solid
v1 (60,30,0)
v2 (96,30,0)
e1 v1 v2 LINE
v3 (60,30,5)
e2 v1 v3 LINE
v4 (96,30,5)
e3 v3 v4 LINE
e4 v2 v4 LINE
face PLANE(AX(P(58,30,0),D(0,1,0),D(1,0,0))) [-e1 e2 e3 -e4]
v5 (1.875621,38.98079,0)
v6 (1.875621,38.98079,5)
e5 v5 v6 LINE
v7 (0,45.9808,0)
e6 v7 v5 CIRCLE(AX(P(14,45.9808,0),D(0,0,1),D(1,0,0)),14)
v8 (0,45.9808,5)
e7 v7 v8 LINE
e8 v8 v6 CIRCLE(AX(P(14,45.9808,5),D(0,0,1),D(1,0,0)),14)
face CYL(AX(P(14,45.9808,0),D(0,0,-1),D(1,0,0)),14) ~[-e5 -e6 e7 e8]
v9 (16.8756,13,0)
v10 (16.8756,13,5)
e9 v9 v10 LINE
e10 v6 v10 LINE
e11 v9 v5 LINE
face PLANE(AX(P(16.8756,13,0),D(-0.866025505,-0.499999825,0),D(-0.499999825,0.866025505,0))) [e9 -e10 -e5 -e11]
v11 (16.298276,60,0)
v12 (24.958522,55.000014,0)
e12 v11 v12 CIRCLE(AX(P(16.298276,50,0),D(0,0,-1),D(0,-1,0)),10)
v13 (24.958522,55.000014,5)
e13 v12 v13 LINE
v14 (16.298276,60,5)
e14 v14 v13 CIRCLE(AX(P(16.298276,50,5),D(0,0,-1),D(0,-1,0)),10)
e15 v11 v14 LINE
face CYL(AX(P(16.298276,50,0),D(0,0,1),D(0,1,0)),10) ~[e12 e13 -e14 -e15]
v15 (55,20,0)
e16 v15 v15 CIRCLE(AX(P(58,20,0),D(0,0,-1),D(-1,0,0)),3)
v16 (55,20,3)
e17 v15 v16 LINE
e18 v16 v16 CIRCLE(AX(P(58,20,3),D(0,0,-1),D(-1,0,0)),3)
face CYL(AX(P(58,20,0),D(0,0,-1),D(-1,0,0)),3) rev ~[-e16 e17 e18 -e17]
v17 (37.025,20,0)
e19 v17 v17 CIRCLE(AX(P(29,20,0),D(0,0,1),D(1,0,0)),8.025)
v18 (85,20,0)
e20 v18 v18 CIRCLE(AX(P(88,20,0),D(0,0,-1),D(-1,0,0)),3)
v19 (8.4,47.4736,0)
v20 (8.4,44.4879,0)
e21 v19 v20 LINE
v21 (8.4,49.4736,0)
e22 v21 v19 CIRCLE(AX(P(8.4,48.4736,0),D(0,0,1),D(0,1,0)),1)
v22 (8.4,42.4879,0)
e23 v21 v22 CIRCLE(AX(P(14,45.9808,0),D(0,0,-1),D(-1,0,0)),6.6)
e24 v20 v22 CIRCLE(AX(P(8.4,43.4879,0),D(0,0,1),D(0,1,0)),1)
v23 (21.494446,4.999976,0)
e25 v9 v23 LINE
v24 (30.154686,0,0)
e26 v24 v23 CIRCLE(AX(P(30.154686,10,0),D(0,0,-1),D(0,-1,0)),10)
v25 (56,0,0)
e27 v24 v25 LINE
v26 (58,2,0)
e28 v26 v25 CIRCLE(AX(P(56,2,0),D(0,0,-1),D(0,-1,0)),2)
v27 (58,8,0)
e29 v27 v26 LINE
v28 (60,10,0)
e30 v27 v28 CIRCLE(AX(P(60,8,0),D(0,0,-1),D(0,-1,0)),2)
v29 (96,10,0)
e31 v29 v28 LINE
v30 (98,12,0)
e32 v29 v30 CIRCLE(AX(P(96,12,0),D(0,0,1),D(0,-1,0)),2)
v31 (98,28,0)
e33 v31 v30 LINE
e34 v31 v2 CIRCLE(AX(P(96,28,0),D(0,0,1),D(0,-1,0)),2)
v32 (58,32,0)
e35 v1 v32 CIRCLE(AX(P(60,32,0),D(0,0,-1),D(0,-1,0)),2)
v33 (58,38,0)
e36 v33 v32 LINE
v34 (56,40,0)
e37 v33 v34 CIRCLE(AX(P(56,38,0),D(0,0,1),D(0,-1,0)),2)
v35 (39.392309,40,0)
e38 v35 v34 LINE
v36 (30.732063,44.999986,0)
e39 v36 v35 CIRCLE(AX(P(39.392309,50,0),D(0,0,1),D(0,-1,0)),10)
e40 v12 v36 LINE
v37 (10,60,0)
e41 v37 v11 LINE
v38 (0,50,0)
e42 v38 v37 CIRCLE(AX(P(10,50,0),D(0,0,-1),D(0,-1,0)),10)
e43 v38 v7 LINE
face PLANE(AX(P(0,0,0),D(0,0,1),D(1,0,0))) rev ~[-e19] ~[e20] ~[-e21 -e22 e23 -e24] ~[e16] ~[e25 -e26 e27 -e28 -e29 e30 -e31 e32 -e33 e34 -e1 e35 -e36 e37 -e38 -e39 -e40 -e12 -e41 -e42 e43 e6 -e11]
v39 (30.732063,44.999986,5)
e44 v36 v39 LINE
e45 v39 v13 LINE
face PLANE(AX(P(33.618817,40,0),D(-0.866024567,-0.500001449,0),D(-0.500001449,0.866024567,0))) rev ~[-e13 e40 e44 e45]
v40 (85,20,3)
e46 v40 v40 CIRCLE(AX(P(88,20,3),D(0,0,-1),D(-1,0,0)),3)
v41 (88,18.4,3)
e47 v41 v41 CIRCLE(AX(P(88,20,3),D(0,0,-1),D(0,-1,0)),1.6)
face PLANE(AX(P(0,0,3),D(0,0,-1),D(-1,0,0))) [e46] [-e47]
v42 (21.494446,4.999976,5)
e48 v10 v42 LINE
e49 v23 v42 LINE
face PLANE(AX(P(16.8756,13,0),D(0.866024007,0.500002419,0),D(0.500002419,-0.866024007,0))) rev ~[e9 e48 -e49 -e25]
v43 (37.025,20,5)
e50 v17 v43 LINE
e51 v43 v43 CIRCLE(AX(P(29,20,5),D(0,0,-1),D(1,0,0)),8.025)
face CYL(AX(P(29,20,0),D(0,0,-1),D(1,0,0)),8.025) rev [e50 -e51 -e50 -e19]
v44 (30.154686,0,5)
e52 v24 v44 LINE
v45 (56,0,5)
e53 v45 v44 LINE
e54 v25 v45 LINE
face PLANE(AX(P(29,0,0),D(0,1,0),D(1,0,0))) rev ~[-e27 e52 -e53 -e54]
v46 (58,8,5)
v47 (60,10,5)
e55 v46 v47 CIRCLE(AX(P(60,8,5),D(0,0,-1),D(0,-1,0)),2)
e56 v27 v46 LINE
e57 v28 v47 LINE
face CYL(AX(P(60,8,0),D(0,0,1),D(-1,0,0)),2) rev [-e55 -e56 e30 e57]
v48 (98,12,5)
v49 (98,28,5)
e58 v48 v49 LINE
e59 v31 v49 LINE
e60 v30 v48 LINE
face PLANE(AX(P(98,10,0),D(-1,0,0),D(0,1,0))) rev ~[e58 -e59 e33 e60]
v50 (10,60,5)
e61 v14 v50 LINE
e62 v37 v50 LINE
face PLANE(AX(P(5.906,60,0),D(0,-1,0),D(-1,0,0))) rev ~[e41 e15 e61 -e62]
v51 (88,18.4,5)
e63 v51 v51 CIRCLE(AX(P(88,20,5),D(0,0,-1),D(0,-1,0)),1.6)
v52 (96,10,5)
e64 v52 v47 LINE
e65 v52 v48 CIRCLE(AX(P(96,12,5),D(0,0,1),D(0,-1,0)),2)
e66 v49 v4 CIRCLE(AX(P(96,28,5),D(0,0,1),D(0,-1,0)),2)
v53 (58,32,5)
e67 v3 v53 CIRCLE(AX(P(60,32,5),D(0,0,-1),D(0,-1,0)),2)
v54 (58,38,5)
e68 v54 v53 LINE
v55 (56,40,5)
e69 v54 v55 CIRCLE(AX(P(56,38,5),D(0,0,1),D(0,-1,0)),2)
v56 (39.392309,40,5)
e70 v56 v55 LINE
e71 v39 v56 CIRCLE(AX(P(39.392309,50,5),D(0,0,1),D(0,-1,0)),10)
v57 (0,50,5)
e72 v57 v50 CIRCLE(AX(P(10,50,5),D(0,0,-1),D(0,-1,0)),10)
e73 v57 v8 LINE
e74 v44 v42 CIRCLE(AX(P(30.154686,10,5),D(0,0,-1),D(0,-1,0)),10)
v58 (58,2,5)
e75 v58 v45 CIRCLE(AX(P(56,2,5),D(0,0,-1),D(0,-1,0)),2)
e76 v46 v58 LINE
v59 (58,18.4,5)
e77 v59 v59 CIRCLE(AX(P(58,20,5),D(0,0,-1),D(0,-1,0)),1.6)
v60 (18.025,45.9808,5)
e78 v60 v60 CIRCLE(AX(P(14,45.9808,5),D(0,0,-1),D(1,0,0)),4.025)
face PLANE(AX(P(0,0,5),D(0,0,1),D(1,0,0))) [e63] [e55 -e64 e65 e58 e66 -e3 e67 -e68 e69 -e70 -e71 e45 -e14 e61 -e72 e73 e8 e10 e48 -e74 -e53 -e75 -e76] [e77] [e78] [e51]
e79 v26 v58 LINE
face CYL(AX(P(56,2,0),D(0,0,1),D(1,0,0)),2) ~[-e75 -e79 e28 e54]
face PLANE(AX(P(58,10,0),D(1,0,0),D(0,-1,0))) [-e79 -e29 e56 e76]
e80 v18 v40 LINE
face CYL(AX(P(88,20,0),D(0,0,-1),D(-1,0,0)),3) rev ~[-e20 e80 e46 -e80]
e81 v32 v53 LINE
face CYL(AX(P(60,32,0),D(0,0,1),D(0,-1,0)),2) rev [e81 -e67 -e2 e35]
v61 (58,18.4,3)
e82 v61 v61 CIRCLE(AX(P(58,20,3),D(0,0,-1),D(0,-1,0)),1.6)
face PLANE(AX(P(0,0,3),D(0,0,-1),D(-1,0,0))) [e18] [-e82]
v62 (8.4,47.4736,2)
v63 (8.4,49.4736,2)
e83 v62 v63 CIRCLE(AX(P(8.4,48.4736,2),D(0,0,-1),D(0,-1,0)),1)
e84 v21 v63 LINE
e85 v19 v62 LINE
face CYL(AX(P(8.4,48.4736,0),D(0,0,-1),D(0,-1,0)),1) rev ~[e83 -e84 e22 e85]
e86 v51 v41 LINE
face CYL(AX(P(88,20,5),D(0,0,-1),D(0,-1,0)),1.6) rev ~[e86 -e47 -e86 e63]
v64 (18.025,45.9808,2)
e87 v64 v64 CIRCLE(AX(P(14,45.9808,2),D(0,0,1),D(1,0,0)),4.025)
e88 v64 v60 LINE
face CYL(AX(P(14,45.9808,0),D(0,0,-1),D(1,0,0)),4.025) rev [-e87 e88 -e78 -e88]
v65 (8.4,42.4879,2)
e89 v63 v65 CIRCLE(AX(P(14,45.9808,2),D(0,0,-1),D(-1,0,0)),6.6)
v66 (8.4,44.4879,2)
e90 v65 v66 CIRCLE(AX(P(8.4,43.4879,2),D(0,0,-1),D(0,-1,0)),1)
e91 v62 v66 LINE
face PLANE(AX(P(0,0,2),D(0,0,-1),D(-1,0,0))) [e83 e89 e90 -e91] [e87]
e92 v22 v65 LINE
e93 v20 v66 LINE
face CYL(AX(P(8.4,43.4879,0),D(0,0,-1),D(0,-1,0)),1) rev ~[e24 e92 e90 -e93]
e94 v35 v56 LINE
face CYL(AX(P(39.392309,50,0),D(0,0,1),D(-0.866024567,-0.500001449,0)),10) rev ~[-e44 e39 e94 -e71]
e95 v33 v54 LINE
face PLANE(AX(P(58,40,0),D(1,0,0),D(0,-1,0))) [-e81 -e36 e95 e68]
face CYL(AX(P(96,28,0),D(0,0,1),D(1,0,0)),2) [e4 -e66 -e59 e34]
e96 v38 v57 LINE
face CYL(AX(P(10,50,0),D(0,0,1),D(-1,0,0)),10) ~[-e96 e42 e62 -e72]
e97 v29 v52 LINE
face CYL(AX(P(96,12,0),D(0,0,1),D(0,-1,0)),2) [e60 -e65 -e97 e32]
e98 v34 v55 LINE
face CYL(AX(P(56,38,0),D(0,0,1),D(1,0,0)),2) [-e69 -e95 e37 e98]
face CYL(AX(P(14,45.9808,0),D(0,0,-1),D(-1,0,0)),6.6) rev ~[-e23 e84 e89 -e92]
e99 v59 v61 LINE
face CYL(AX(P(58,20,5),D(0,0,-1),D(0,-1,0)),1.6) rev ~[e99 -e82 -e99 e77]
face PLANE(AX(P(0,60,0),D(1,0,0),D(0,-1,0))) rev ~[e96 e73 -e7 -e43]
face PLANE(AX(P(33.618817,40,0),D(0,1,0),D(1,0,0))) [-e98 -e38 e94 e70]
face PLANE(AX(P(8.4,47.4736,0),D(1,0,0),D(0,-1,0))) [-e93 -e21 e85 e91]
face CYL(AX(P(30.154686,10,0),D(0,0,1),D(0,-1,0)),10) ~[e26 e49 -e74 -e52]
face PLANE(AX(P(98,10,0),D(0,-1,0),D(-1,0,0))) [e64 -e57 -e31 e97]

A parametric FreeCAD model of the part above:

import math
import FreeCAD as App
import Part
import Sketcher
Q = App.Units.Quantity


def edges_at(feature, points):
    """Names of the edges that pass closest to the given points."""
    edges = feature.Shape.Edges
    near = lambda p: min(range(len(edges)), key=lambda i: edges[i].distToShape(Part.Vertex(*p))[0])
    return sorted({f"Edge{near(p) + 1}" for p in points})

doc = App.newDocument("Part")
params = doc.addObject("Spreadsheet::Sheet", "Params")
for row, (alias, value) in enumerate([
    ("sketch1_radius", "14 mm"),
    ("sketch1_diameter", "16.05 mm"),
    ("sketch1_diameter2", "8.05 mm"),
    ("sketch1_width", "40 mm"),
    ("sketch1_height", "10 mm"),
    ("pad1_length", "5 mm"),
    ("sketch2_diameter", "3.2 mm"),
    ("hole_diameter", "3.2 mm"),
    ("hole_depth", "10 mm"),
    ("fillet_radius", "2 mm"),
    ("fillet2_radius", "10 mm"),
    ("sketch3_diameter", "6 mm"),
    ("pocket1_length", "3 mm"),
    ("sketch4_radius", "1 mm"),
    ("sketch4_radius2", "6.6 mm"),
    ("sketch4_diameter", "8.05 mm"),
    ("pocket2_length", "2 mm"),
], start=1):
    params.set(f"A{row}", alias)
    params.set(f"B{row}", "=" + value)
    params.setAlias(f"B{row}", alias)

body = doc.addObject("PartDesign::Body", "Body")

# Sketch on XY plane
sketch1 = body.newObject("Sketcher::SketchObject", "Sketch")
sketch1.AttachmentSupport = (doc.getObject("XY_Plane"), [""])
sketch1.MapMode = "FlatFace"
sketch1.addGeometry(Part.LineSegment(App.Vector(58, 0, 0), App.Vector(58, 10, 0)), False)
sketch1.addGeometry(Part.LineSegment(App.Vector(58, 10, 0), App.Vector(98, 10, 0)), False)
sketch1.addGeometry(Part.LineSegment(App.Vector(98, 10, 0), App.Vector(98, 30, 0)), False)
sketch1.addGeometry(Part.LineSegment(App.Vector(98, 30, 0), App.Vector(58, 30, 0)), False)
sketch1.addGeometry(Part.LineSegment(App.Vector(58, 30, 0), App.Vector(58, 40, 0)), False)
sketch1.addGeometry(Part.LineSegment(App.Vector(58, 40, 0), App.Vector(33.6, 40, 0)), False)
sketch1.addGeometry(Part.LineSegment(App.Vector(33.6, 40, 0), App.Vector(22.1, 60, 0)), False)
sketch1.addGeometry(Part.LineSegment(App.Vector(22.1, 60, 0), App.Vector(0, 60, 0)), False)
sketch1.addGeometry(Part.LineSegment(App.Vector(0, 60, 0), App.Vector(0, 46, 0)), False)
sketch1.addGeometry(Part.ArcOfCircle(Part.Circle(App.Vector(14, 46, 0), App.Vector(0, 0, 1), 14), math.radians(180), math.radians(210)), False)
sketch1.addGeometry(Part.LineSegment(App.Vector(1.9, 39, 0), App.Vector(16.9, 13, 0)), False)
sketch1.addGeometry(Part.LineSegment(App.Vector(16.9, 13, 0), App.Vector(24.4, 0, 0)), False)
sketch1.addGeometry(Part.LineSegment(App.Vector(24.4, 0, 0), App.Vector(58, 0, 0)), False)
sketch1.addGeometry(Part.Circle(App.Vector(29, 20, 0), App.Vector(0, 0, 1), 8), False)
sketch1.addGeometry(Part.Circle(App.Vector(14, 46, 0), App.Vector(0, 0, 1), 4), False)
sketch1.addConstraint(Sketcher.Constraint("Coincident", 0, 2, 1, 1))
sketch1.addConstraint(Sketcher.Constraint("Coincident", 1, 2, 2, 1))
sketch1.addConstraint(Sketcher.Constraint("Coincident", 2, 2, 3, 1))
sketch1.addConstraint(Sketcher.Constraint("Coincident", 3, 2, 4, 1))
sketch1.addConstraint(Sketcher.Constraint("Coincident", 4, 2, 5, 1))
sketch1.addConstraint(Sketcher.Constraint("Coincident", 5, 2, 6, 1))
sketch1.addConstraint(Sketcher.Constraint("Coincident", 6, 2, 7, 1))
sketch1.addConstraint(Sketcher.Constraint("Coincident", 7, 2, 8, 1))
sketch1.addConstraint(Sketcher.Constraint("Tangent", 8, 2, 9, 1))
sketch1.addConstraint(Sketcher.Constraint("Tangent", 9, 2, 10, 1))
sketch1.addConstraint(Sketcher.Constraint("Coincident", 10, 2, 11, 1))
sketch1.addConstraint(Sketcher.Constraint("Coincident", 11, 2, 12, 1))
sketch1.addConstraint(Sketcher.Constraint("Coincident", 12, 2, 0, 1))
sketch1.addConstraint(Sketcher.Constraint("Vertical", 0))
sketch1.addConstraint(Sketcher.Constraint("Horizontal", 1))
sketch1.addConstraint(Sketcher.Constraint("Vertical", 2))
sketch1.addConstraint(Sketcher.Constraint("Horizontal", 3))
sketch1.addConstraint(Sketcher.Constraint("Vertical", 4))
sketch1.addConstraint(Sketcher.Constraint("Horizontal", 5))
sketch1.addConstraint(Sketcher.Constraint("Horizontal", 7))
sketch1.addConstraint(Sketcher.Constraint("Vertical", 8))
sketch1.addConstraint(Sketcher.Constraint("Horizontal", 12))
sketch1.addConstraint(Sketcher.Constraint("Coincident", 14, 3, 9, 3))
sketch1.addConstraint(Sketcher.Constraint("PointOnObject", 7, 2, -2))
sketch1.addConstraint(Sketcher.Constraint("PointOnObject", 11, 2, -1))
sketch1.addConstraint(Sketcher.Constraint("Parallel", 6, 10))
sketch1.addConstraint(Sketcher.Constraint("Parallel", 10, 11))
sketch1.addConstraint(Sketcher.Constraint("Vertical", 0, 2, 3, 2))
sketch1.addConstraint(Sketcher.Constraint("Equal", 0, 4))
sketch1.addConstraint(Sketcher.Constraint("Radius", 9, 14.0))
sketch1.addConstraint(Sketcher.Constraint("Diameter", 13, 16.05))
sketch1.addConstraint(Sketcher.Constraint("Diameter", 14, 8.05))
sketch1.addConstraint(Sketcher.Constraint("DistanceX", 1, 1, 1, 2, 40.0))
sketch1.addConstraint(Sketcher.Constraint("DistanceY", 0, 1, 0, 2, 10.0))
sketch1.addConstraint(Sketcher.Constraint("DistanceY", 2, 1, 2, 2, 20.0))
sketch1.addConstraint(Sketcher.Constraint("Angle", 10, Q("-60 deg")))
sketch1.addConstraint(Sketcher.Constraint("Distance", 10, 30.0))
sketch1.addConstraint(Sketcher.Constraint("DistanceY", -1, 1, 13, 3, 20.0))
sketch1.addConstraint(Sketcher.Constraint("DistanceX", -1, 1, 1, 2, 98.0))
sketch1.addConstraint(Sketcher.Constraint("DistanceY", -1, 1, 6, 2, 60.0))
sketch1.addConstraint(Sketcher.Constraint("DistanceX", 13, 3, 1, 2, 69.0))
sketch1.addConstraint(Sketcher.Constraint("DistanceY", -1, 1, 10, 2, 13.0))
sketch1.addConstraint(Sketcher.Constraint("DistanceX", 5, 2, 5, 1, 24.3812))
sketch1.setExpression("Constraints[29]", "Params.sketch1_radius")
sketch1.setExpression("Constraints[30]", "Params.sketch1_diameter")
sketch1.setExpression("Constraints[31]", "Params.sketch1_diameter2")
sketch1.setExpression("Constraints[32]", "Params.sketch1_width")
sketch1.setExpression("Constraints[33]", "Params.sketch1_height")
pad1 = body.newObject("PartDesign::Pad", "Pad")
pad1.Profile = sketch1
pad1.setExpression("Length", "Params.pad1_length")

# Sketch on XY plane
sketch2 = body.newObject("Sketcher::SketchObject", "Sketch001")
sketch2.AttachmentSupport = (doc.getObject("XY_Plane"), [""])
sketch2.MapMode = "FlatFace"
sketch2.AttachmentOffset = App.Placement(App.Vector(0, 0, 5), App.Rotation())
sketch2.addGeometry(Part.Circle(App.Vector(88, 20, 0), App.Vector(0, 0, 1), 1.6), False)
sketch2.addGeometry(Part.Circle(App.Vector(58, 20, 0), App.Vector(0, 0, 1), 1.6), False)
sketch2.addConstraint(Sketcher.Constraint("Equal", 0, 1))
sketch2.addConstraint(Sketcher.Constraint("Horizontal", 0, 3, 1, 3))
sketch2.addConstraint(Sketcher.Constraint("Diameter", 0, 3.2))
sketch2.addConstraint(Sketcher.Constraint("DistanceX", -1, 1, 0, 3, 88.0))
sketch2.addConstraint(Sketcher.Constraint("DistanceY", -1, 1, 0, 3, 20.0))
sketch2.addConstraint(Sketcher.Constraint("DistanceX", -1, 1, 1, 3, 58.0))
sketch2.setExpression("Constraints[2]", "Params.sketch2_diameter")
doc.recompute()
hole = body.newObject("PartDesign::Hole", "Hole")
hole.Profile = sketch2
hole.ThreadType = "None"
hole.setExpression("Diameter", "Params.hole_diameter")
hole.DepthType = "Dimension"
hole.setExpression("Depth", "Params.hole_depth")
hole.DrillPoint = "Flat"
doc.recompute()

fillet = body.newObject("PartDesign::Fillet", "Fillet")
fillet.Base = (hole, edges_at(hole, [
    (58, 40, 2.5),
    (58, 30, 2.5),
    (98, 30, 2.5),
    (98, 10, 2.5),
    (58, 0, 2.5),
    (58, 10, 2.5),
]))
fillet.setExpression("Radius", "Params.fillet_radius")
doc.recompute()

fillet2 = body.newObject("PartDesign::Fillet", "Fillet001")
fillet2.Base = (fillet, edges_at(fillet, [
    (24.381, 0, 2.5),
    (0, 60, 2.5),
    (22.072, 60, 2.5),
    (33.619, 40, 2.5),
]))
fillet2.setExpression("Radius", "Params.fillet2_radius")

# Sketch on XY plane
sketch3 = body.newObject("Sketcher::SketchObject", "Sketch002")
sketch3.AttachmentSupport = (doc.getObject("XY_Plane"), [""])
sketch3.MapMode = "FlatFace"
sketch3.addGeometry(Part.Circle(App.Vector(88, 20, 0), App.Vector(0, 0, 1), 3), False)
sketch3.addGeometry(Part.Circle(App.Vector(58, 20, 0), App.Vector(0, 0, 1), 3), False)
sketch3.addConstraint(Sketcher.Constraint("Equal", 0, 1))
sketch3.addConstraint(Sketcher.Constraint("Horizontal", 0, 3, 1, 3))
sketch3.addConstraint(Sketcher.Constraint("Diameter", 0, 6.0))
sketch3.addConstraint(Sketcher.Constraint("DistanceX", -1, 1, 0, 3, 88.0))
sketch3.addConstraint(Sketcher.Constraint("DistanceY", -1, 1, 0, 3, 20.0))
sketch3.addConstraint(Sketcher.Constraint("DistanceX", -1, 1, 1, 3, 58.0))
sketch3.setExpression("Constraints[2]", "Params.sketch3_diameter")
pocket1 = body.newObject("PartDesign::Pocket", "Pocket")
pocket1.Profile = sketch3
pocket1.setExpression("Length", "Params.pocket1_length")
pocket1.Reversed = True

# Sketch on XY plane
sketch4 = body.newObject("Sketcher::SketchObject", "Sketch003")
sketch4.AttachmentSupport = (doc.getObject("XY_Plane"), [""])
sketch4.MapMode = "FlatFace"
sketch4.addGeometry(Part.LineSegment(App.Vector(8.4, 44.5, 0), App.Vector(8.4, 47.5, 0)), False)
sketch4.addGeometry(Part.ArcOfCircle(Part.Circle(App.Vector(8.4, 48.5, 0), App.Vector(0, 0, 1), 1), math.radians(90), math.radians(270)), False)
sketch4.addGeometry(Part.ArcOfCircle(Part.Circle(App.Vector(14, 46, 0), App.Vector(0, 0, 1), 6.6), math.radians(-148), math.radians(148)), False)
sketch4.addGeometry(Part.ArcOfCircle(Part.Circle(App.Vector(8.4, 43.5, 0), App.Vector(0, 0, 1), 1), math.radians(90), math.radians(270)), False)
sketch4.addGeometry(Part.Circle(App.Vector(14, 46, 0), App.Vector(0, 0, 1), 4), False)
sketch4.addConstraint(Sketcher.Constraint("Coincident", 0, 2, 1, 2))
sketch4.addConstraint(Sketcher.Constraint("Coincident", 1, 1, 2, 2))
sketch4.addConstraint(Sketcher.Constraint("Coincident", 2, 1, 3, 2))
sketch4.addConstraint(Sketcher.Constraint("Coincident", 3, 1, 0, 1))
sketch4.addConstraint(Sketcher.Constraint("Vertical", 0))
sketch4.addConstraint(Sketcher.Constraint("Coincident", 4, 3, 2, 3))
sketch4.addConstraint(Sketcher.Constraint("Equal", 1, 3))
sketch4.addConstraint(Sketcher.Constraint("Vertical", 1, 3, 3, 3))
sketch4.addConstraint(Sketcher.Constraint("Vertical", 3, 3, 0, 2))
sketch4.addConstraint(Sketcher.Constraint("Vertical", 0, 2, 1, 1))
sketch4.addConstraint(Sketcher.Constraint("Vertical", 1, 1, 2, 1))
sketch4.addConstraint(Sketcher.Constraint("Radius", 1, 1.0))
sketch4.addConstraint(Sketcher.Constraint("Radius", 2, 6.6))
sketch4.addConstraint(Sketcher.Constraint("DistanceX", 1, 3, 2, 3, 5.6))
sketch4.addConstraint(Sketcher.Constraint("Diameter", 4, 8.05))
sketch4.addConstraint(Sketcher.Constraint("DistanceX", -1, 1, 2, 3, 14.0))
sketch4.addConstraint(Sketcher.Constraint("DistanceY", -1, 1, 3, 3, 43.488))
sketch4.setExpression("Constraints[11]", "Params.sketch4_radius")
sketch4.setExpression("Constraints[12]", "Params.sketch4_radius2")
sketch4.setExpression("Constraints[14]", "Params.sketch4_diameter")
pocket2 = body.newObject("PartDesign::Pocket", "Pocket001")
pocket2.Profile = sketch4
pocket2.setExpression("Length", "Params.pocket2_length")
pocket2.Reversed = True

doc.recompute()
